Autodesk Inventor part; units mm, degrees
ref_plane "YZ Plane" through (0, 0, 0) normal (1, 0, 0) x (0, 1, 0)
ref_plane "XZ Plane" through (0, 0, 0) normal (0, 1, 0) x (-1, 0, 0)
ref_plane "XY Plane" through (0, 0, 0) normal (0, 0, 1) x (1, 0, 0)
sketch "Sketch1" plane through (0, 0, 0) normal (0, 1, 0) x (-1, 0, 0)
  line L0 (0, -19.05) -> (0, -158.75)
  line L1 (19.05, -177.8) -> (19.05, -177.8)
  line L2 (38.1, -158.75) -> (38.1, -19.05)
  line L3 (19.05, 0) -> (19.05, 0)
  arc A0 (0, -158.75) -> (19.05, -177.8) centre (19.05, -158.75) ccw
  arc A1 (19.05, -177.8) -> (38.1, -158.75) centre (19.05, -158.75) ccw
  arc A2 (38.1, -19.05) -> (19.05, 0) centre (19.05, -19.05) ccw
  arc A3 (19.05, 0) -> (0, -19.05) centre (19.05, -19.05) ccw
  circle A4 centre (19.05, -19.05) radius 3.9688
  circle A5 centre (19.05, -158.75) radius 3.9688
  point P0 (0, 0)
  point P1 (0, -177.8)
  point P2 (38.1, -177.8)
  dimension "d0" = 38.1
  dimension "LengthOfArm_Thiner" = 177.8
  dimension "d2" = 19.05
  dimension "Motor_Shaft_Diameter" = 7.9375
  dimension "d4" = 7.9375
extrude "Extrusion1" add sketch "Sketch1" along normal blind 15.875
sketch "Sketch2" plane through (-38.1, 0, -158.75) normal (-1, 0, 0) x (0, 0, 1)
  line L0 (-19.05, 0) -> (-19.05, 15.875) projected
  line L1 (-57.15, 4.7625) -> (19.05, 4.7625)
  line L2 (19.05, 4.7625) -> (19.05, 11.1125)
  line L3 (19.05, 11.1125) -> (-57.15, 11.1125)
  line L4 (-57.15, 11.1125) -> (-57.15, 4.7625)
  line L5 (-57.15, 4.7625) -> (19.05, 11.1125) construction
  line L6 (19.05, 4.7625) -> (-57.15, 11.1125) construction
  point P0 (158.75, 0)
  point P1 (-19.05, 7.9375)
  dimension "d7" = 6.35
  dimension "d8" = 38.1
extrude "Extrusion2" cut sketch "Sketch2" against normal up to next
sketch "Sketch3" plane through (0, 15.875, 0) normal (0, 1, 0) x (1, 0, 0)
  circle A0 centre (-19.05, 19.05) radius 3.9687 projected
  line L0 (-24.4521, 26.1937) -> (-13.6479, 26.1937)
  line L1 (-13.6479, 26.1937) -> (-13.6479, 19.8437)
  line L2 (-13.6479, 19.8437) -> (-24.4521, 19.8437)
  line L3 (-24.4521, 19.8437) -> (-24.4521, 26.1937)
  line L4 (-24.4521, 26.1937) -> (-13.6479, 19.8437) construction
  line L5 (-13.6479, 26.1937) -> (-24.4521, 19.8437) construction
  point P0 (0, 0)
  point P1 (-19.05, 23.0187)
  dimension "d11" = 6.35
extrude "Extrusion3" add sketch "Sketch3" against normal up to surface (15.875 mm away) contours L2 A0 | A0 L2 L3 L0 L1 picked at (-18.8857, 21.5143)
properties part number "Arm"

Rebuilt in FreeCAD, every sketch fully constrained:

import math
import FreeCAD as App
import Part
import Sketcher
from FreeCAD import Vector
Q = App.Units.Quantity


def add_polygon(sketch, points):
    """Adds a closed chain of lines whose ends are joined by coincident constraints."""
    first, n = sketch.GeometryCount, len(points)
    for a, b in zip(points, points[1:] + points[:1]):
        sketch.addGeometry(Part.LineSegment(App.Vector(*a, 0), App.Vector(*b, 0)), False)
    for i in range(n):
        sketch.addConstraint(Sketcher.Constraint("Coincident", first + i, 2, first + (i + 1) % n, 1))

doc = App.newDocument("Part")
body = doc.addObject("PartDesign::Body", "Body")

# Sketch on XZ plane
sketch1 = body.newObject("Sketcher::SketchObject", "Sketch")
sketch1.AttachmentSupport = (doc.getObject("XZ_Plane"), [""])
sketch1.MapMode = "FlatFace"
sketch1.addGeometry([
    Part.ArcOfCircle(Part.Circle(Vector(-19.1, -19.1, 0), Vector(0, 0, 1), 19.1), math.radians(0), math.radians(180)),  # 0
    Part.LineSegment(Vector(0, -19.1, 0), Vector(0, -158.8, 0)),  # 1
    Part.ArcOfCircle(Part.Circle(Vector(-19.1, -158.8, 0), Vector(0, 0, 1), 19.1), math.radians(180), math.radians(360)),  # 2
    Part.LineSegment(Vector(-38.1, -158.8, 0), Vector(-38.1, -19.1, 0)),  # 3
    Part.Circle(Vector(-19.1, -158.8, 0), Vector(0, 0, 1), 4),  # 4
    Part.Circle(Vector(-19.1, -19.1, 0), Vector(0, 0, 1), 4),  # 5
], False)
sketch1.addConstraint([
    Sketcher.Constraint("Tangent", 0, 1, 1, 1),
    Sketcher.Constraint("Tangent", 1, 2, 2, 2),
    Sketcher.Constraint("Tangent", 2, 1, 3, 1),
    Sketcher.Constraint("Tangent", 3, 2, 0, 2),
    Sketcher.Constraint("Vertical", 1),
    Sketcher.Constraint("Vertical", 3),
    Sketcher.Constraint("Coincident", 4, 3, 2, 3),
    Sketcher.Constraint("Coincident", 5, 3, 0, 3),
    Sketcher.Constraint("Equal", 4, 5),
    Sketcher.Constraint("PointOnObject", 0, 1, -2),
    Sketcher.Constraint("Radius", 0, Q("0.75 in")),
    Sketcher.Constraint("Diameter", 4, Q("0.3125 in")),
    Sketcher.Constraint("DistanceY", 0, 3, -1, 1, Q("0.75 in")),
    Sketcher.Constraint("DistanceY", 1, 2, 1, 1, Q("5.5 in")),
])
pad1 = body.newObject("PartDesign::Pad", "Pad")
pad1.Profile = sketch1
pad1.Length = Q("0.625 in")
pad1.Reversed = True

# Sketch on YZ plane
sketch2 = body.newObject("Sketcher::SketchObject", "Sketch001")
sketch2.AttachmentSupport = (doc.getObject("YZ_Plane"), [""])
sketch2.MapMode = "FlatFace"
sketch2.AttachmentOffset = App.Placement(Vector(0, 0, -1.5 * 25.4), App.Rotation())
add_polygon(sketch2, [(5, -216), (5, -140), (11, -140), (11, -216)])  # lines 0-3
sketch2.addConstraint([
    Sketcher.Constraint("Vertical", 0),
    Sketcher.Constraint("Horizontal", 1),
    Sketcher.Constraint("Vertical", 2),
    Sketcher.Constraint("Horizontal", 3),
    Sketcher.Constraint("DistanceX", 1, 1, 1, 2, Q("0.25 in")),
    Sketcher.Constraint("DistanceY", 0, 1, 0, 2, Q("3 in")),
    Sketcher.Constraint("DistanceY", 0, 2, -1, 1, Q("5.5 in")),
    Sketcher.Constraint("DistanceX", -1, 1, 0, 2, Q("0.1875 in")),
])
pocket1 = body.newObject("PartDesign::Pocket", "Pocket")
pocket1.Profile = sketch2
pocket1.Length = Q("1.5 in")
pocket1.Reversed = True

# Sketch on XZ plane
sketch3 = body.newObject("Sketcher::SketchObject", "Sketch002")
sketch3.AttachmentSupport = (doc.getObject("XZ_Plane"), [""])
sketch3.MapMode = "FlatFace"
sketch3.AttachmentOffset = App.Placement(Vector(0, 0, -0.625 * 25.4), App.Rotation())
add_polygon(sketch3, [(-14, -20), (-14, -26), (-24, -26), (-24, -20)])  # lines 0-3
sketch3.addConstraint([
    Sketcher.Constraint("Vertical", 0),
    Sketcher.Constraint("Horizontal", 1),
    Sketcher.Constraint("Vertical", 2),
    Sketcher.Constraint("Horizontal", 3),
    Sketcher.Constraint("DistanceY", 0, 2, 0, 1, Q("0.25 in")),
    Sketcher.Constraint("DistanceY", 0, 2, -1, 1, Q("1.031248 in")),
    Sketcher.Constraint("DistanceX", 1, 2, 1, 1, 10.8042),
    Sketcher.Constraint("DistanceX", 0, 2, -1, 1, 13.648),
])
pad2 = body.newObject("PartDesign::Pad", "Pad001")
pad2.Profile = sketch3
pad2.Length = Q("0.625 in")

doc.recompute()
